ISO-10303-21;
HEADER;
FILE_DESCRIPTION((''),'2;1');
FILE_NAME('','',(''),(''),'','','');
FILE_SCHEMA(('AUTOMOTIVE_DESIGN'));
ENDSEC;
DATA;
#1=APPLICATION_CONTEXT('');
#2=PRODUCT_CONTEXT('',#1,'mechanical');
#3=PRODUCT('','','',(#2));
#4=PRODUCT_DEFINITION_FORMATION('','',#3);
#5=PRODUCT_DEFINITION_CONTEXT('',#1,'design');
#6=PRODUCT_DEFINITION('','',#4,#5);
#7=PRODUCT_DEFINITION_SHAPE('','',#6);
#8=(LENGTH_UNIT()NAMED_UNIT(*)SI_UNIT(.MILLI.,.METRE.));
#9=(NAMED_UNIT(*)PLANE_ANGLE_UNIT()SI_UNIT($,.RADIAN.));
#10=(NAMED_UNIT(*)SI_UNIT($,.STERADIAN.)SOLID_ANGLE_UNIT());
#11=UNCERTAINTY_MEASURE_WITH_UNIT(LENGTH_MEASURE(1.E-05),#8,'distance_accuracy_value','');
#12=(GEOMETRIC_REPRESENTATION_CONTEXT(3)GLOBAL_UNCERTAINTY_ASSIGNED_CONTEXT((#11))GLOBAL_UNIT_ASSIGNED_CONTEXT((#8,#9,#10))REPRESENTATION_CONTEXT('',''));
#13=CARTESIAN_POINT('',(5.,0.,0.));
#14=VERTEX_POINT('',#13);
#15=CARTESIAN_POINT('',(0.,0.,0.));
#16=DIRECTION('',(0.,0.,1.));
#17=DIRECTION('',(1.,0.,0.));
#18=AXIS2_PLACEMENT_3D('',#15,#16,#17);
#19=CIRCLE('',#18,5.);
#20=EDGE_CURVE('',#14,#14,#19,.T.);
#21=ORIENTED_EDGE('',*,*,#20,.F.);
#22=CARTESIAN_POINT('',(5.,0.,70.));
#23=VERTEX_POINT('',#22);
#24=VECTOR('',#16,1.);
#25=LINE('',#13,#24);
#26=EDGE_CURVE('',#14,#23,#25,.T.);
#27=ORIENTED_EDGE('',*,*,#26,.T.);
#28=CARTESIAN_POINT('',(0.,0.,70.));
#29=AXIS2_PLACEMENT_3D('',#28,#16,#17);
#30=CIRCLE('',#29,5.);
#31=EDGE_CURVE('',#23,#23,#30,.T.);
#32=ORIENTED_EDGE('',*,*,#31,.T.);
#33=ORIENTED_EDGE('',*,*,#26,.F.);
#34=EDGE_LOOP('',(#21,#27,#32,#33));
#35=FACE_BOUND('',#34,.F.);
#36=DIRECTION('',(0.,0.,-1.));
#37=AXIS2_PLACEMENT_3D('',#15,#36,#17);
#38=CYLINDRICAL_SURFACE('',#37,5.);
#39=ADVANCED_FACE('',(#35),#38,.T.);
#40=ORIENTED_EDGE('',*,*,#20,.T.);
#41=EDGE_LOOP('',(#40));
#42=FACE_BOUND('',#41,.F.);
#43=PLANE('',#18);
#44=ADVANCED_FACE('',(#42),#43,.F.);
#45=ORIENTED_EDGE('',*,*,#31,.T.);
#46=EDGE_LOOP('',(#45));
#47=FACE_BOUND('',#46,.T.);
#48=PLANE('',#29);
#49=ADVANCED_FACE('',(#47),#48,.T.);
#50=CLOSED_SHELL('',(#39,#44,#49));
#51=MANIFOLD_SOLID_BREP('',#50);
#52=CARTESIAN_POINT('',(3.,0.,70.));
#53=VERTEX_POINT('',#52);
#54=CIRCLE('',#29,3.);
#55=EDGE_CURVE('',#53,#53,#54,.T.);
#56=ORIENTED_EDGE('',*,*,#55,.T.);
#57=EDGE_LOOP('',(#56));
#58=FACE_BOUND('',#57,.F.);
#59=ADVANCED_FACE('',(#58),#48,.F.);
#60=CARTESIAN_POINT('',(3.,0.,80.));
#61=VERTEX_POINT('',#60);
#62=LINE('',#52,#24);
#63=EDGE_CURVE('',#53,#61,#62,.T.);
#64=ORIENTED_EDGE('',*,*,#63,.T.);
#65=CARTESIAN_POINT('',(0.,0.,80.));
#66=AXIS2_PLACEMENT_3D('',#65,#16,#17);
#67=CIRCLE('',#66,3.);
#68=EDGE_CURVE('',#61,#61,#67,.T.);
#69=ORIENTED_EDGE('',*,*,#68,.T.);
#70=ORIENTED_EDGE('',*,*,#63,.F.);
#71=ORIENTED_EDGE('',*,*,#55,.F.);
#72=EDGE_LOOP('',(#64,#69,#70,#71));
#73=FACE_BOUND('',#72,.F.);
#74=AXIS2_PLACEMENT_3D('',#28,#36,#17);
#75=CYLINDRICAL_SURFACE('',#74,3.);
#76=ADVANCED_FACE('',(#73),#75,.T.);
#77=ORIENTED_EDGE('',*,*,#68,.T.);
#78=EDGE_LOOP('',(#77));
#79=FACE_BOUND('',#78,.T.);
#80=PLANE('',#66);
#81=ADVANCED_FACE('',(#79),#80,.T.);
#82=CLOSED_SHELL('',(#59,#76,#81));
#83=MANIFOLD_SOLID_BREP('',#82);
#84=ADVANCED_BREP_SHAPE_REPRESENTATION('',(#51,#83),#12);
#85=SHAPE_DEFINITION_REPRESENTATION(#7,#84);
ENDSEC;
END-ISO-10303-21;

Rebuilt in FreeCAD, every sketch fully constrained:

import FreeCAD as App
import Part
import Sketcher

V = App.Vector

doc = App.newDocument("Part")
params = doc.addObject("Spreadsheet::Sheet", "Params")
for row, (alias, value) in enumerate([
    ("sketch1_diameter", "10 mm"),
    ("pad1_length", "70 mm"),
    ("sketch2_diameter", "6 mm"),
    ("pad2_length", "10 mm"),
], start=1):
    params.set(f"A{row}", alias)
    params.set(f"B{row}", "=" + value)
    params.setAlias(f"B{row}", alias)

body = doc.addObject("PartDesign::Body", "Body")

# Sketch on XY plane
sketch1 = body.newObject("Sketcher::SketchObject", "Sketch")
sketch1.AttachmentSupport = (doc.getObject("XY_Plane"), [""])
sketch1.MapMode = "FlatFace"
sketch1.addGeometry(Part.Circle(V(0, 0, 0), V(0, 0, 1), 5), False)
sketch1.addConstraint(Sketcher.Constraint("Coincident", 0, 3, -1, 1))
sketch1.addConstraint(Sketcher.Constraint("Diameter", 0, 10.0))
sketch1.setExpression("Constraints[1]", "Params.sketch1_diameter")
pad1 = body.newObject("PartDesign::Pad", "Pad")
pad1.Profile = sketch1
pad1.setExpression("Length", "Params.pad1_length")
body2 = doc.addObject("PartDesign::Body", "Body001")

# Sketch on XY plane
sketch2 = body2.newObject("Sketcher::SketchObject", "Sketch001")
sketch2.AttachmentSupport = (doc.getObject("XY_Plane001"), [""])
sketch2.MapMode = "FlatFace"
sketch2.AttachmentOffset = App.Placement(V(0, 0, 70), App.Rotation())
sketch2.addGeometry(Part.Circle(V(0, 0, 0), V(0, 0, 1), 3), False)
sketch2.addConstraint(Sketcher.Constraint("Coincident", 0, 3, -1, 1))
sketch2.addConstraint(Sketcher.Constraint("Diameter", 0, 6.0))
sketch2.setExpression("Constraints[1]", "Params.sketch2_diameter")
pad2 = body2.newObject("PartDesign::Pad", "Pad001")
pad2.Profile = sketch2
pad2.setExpression("Length", "Params.pad2_length")

doc.recompute()
